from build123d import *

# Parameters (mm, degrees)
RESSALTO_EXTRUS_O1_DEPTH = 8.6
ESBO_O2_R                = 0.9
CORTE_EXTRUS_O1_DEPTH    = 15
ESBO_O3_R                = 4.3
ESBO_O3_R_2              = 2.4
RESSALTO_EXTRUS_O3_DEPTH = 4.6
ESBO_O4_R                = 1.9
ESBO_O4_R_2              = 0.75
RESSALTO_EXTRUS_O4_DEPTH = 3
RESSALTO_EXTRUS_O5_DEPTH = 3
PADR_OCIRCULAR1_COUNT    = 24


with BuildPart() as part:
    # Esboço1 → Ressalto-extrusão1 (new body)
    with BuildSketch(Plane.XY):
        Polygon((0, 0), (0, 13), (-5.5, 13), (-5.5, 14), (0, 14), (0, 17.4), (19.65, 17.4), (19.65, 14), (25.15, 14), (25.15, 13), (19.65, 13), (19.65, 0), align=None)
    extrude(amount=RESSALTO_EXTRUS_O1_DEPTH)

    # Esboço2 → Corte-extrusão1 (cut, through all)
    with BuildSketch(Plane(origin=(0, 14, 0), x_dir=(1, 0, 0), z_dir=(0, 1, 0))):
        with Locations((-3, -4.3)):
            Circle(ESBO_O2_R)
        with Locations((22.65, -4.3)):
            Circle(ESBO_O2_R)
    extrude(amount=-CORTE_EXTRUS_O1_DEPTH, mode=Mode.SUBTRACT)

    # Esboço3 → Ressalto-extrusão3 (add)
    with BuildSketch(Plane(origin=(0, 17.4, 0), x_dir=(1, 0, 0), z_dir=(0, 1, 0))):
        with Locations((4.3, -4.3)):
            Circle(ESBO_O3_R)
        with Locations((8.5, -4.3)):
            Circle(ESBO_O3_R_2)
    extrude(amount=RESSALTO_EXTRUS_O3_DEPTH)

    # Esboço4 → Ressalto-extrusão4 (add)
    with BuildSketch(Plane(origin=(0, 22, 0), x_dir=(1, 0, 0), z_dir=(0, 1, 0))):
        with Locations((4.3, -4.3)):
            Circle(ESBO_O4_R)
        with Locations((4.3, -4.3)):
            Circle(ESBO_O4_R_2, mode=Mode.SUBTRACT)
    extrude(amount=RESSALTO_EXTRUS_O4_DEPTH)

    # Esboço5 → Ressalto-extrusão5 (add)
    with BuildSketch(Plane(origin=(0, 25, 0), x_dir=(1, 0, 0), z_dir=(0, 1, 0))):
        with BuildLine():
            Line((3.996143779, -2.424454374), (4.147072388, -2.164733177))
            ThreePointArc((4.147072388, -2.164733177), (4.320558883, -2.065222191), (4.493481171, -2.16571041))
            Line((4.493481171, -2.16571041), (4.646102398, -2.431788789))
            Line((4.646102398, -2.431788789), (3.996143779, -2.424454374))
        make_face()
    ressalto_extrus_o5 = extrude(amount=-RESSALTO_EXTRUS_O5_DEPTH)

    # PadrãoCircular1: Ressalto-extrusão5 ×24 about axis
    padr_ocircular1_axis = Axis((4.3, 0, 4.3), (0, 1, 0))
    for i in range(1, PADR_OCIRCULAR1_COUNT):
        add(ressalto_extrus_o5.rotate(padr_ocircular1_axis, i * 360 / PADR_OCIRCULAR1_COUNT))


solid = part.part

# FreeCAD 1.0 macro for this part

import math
import FreeCAD as App
import Part
import Sketcher
from FreeCAD import Vector
Q = App.Units.Quantity


def add_polygon(sketch, points):
    """Adds a closed chain of lines whose ends are joined by coincident constraints."""
    first, n = sketch.GeometryCount, len(points)
    for a, b in zip(points, points[1:] + points[:1]):
        sketch.addGeometry(Part.LineSegment(App.Vector(*a, 0), App.Vector(*b, 0)), False)
    for i in range(n):
        sketch.addConstraint(Sketcher.Constraint("Coincident", first + i, 2, first + (i + 1) % n, 1))

doc = App.newDocument("Part")
params = doc.addObject("Spreadsheet::Sheet", "Params")
for row, (alias, value) in enumerate([
    ("sketch1_height", "13 mm"),
    ("sketch1_height2", "1 mm"),
    ("sketch1_width", "5.5 mm"),
    ("sketch1_height3", "3.4 mm"),
    ("sketch1_width2", "19.65 mm"),
    ("pad1_length", "8.6 mm"),
    ("sketch2_diameter", "1.8 mm"),
    ("sketch3_radius", "2.4 mm"),
    ("sketch3_radius2", "4.3 mm"),
    ("pad2_length", "4.6 mm"),
    ("sketch4_diameter", "3.8 mm"),
    ("sketch4_diameter2", "1.5 mm"),
    ("pad3_length", "3 mm"),
    ("sketch5_radius", "0.2 mm"),
    ("sketch5_length", "0.65 mm"),
    ("pad4_length", "3 mm"),
], start=1):
    params.set(f"A{row}", alias)
    params.set(f"B{row}", "=" + value)
    params.setAlias(f"B{row}", alias)

body = doc.addObject("PartDesign::Body", "Body")

# Sketch on XY plane
sketch1 = doc.addObject("Sketcher::SketchObject", "Sketch")
body.addObject(sketch1)
sketch1.AttachmentSupport = (doc.XY_Plane, [""])
sketch1.MapMode = "FlatFace"
add_polygon(sketch1, [(0, 13), (0, 0), (19.6, 0), (19.6, 13), (25.1, 13), (25.1, 14), (19.6, 14), (19.6, 17.4), (0, 17.4), (0, 14), (-5.5, 14), (-5.5, 13)])  # lines 0-11
sketch1.addConstraint(Sketcher.Constraint("Vertical", 0))
sketch1.addConstraint(Sketcher.Constraint("Horizontal", 1))
sketch1.addConstraint(Sketcher.Constraint("Vertical", 2))
sketch1.addConstraint(Sketcher.Constraint("Horizontal", 3))
sketch1.addConstraint(Sketcher.Constraint("Vertical", 4))
sketch1.addConstraint(Sketcher.Constraint("Horizontal", 5))
sketch1.addConstraint(Sketcher.Constraint("Vertical", 6))
sketch1.addConstraint(Sketcher.Constraint("Horizontal", 7))
sketch1.addConstraint(Sketcher.Constraint("Vertical", 8))
sketch1.addConstraint(Sketcher.Constraint("Horizontal", 9))
sketch1.addConstraint(Sketcher.Constraint("Vertical", 10))
sketch1.addConstraint(Sketcher.Constraint("Horizontal", 11))
sketch1.addConstraint(Sketcher.Constraint("Coincident", 0, 2, -1, 1))
sketch1.addConstraint(Sketcher.Constraint("PointOnObject", 7, 2, -2))
sketch1.addConstraint(Sketcher.Constraint("Horizontal", 5, 2, 8, 2))
sketch1.addConstraint(Sketcher.Constraint("Horizontal", 3, 2, 10, 2))
sketch1.addConstraint(Sketcher.Constraint("Vertical", 2, 2, 5, 2))
sketch1.addConstraint(Sketcher.Constraint("Equal", 5, 9))
sketch1.addConstraint(Sketcher.Constraint("DistanceY", 0, 2, 0, 1, Q("13 mm")))
sketch1.addConstraint(Sketcher.Constraint("DistanceY", 4, 1, 4, 2, Q("1 mm")))
sketch1.addConstraint(Sketcher.Constraint("DistanceX", 3, 1, 3, 2, Q("5.5 mm")))
sketch1.addConstraint(Sketcher.Constraint("DistanceY", 6, 1, 6, 2, Q("3.4 mm")))
sketch1.addConstraint(Sketcher.Constraint("DistanceX", 1, 1, 1, 2, Q("19.65 mm")))
sketch1.setExpression("Constraints[30]", "Params.sketch1_height")
sketch1.setExpression("Constraints[31]", "Params.sketch1_height2")
sketch1.setExpression("Constraints[32]", "Params.sketch1_width")
sketch1.setExpression("Constraints[33]", "Params.sketch1_height3")
sketch1.setExpression("Constraints[34]", "Params.sketch1_width2")
pad1 = doc.addObject("PartDesign::Pad", "Pad")
body.addObject(pad1)
pad1.Profile = sketch1
pad1.setExpression("Length", "Params.pad1_length")

# Sketch on XZ plane
sketch2 = doc.addObject("Sketcher::SketchObject", "Sketch001")
body.addObject(sketch2)
sketch2.AttachmentSupport = (doc.XZ_Plane, [""])
sketch2.MapMode = "FlatFace"
sketch2.AttachmentOffset = App.Placement(Vector(0, 0, -14), App.Rotation())
sketch2.addGeometry(Part.Circle(Vector(-3, 4.3, 0), Vector(0, 0, 1), 0.9), False)
sketch2.addGeometry(Part.Circle(Vector(22.6, 4.3, 0), Vector(0, 0, 1), 0.9), False)
sketch2.addConstraint(Sketcher.Constraint("Equal", 0, 1))
sketch2.addConstraint(Sketcher.Constraint("Horizontal", 0, 3, 1, 3))
sketch2.addConstraint(Sketcher.Constraint("Diameter", 0, Q("1.8 mm")))
sketch2.addConstraint(Sketcher.Constraint("DistanceX", 0, 3, -1, 1, Q("3 mm")))
sketch2.addConstraint(Sketcher.Constraint("DistanceY", -1, 1, 0, 3, Q("4.3 mm")))
sketch2.addConstraint(Sketcher.Constraint("DistanceX", -1, 1, 1, 3, Q("22.65 mm")))
sketch2.setExpression("Constraints[2]", "Params.sketch2_diameter")
pocket1 = doc.addObject("PartDesign::Pocket", "Pocket")
body.addObject(pocket1)
pocket1.Profile = sketch2
pocket1.Type = "ThroughAll"
pocket1.Reversed = True

# Sketch on XZ plane
sketch3 = doc.addObject("Sketcher::SketchObject", "Sketch002")
body.addObject(sketch3)
sketch3.AttachmentSupport = (doc.XZ_Plane, [""])
sketch3.MapMode = "FlatFace"
sketch3.AttachmentOffset = App.Placement(Vector(0, 0, -17.4), App.Rotation())
sketch3.addGeometry(Part.ArcOfCircle(Part.Circle(Vector(8.5, 4.3, 0), Vector(0, 0, 1), 2.4), math.radians(-104), math.radians(104)), False)
sketch3.addGeometry(Part.ArcOfCircle(Part.Circle(Vector(4.3, 4.3, 0), Vector(0, 0, 1), 4.3), math.radians(33), math.radians(327)), False)
sketch3.addConstraint(Sketcher.Constraint("Coincident", 0, 1, 1, 2))
sketch3.addConstraint(Sketcher.Constraint("Coincident", 1, 1, 0, 2))
sketch3.addConstraint(Sketcher.Constraint("Horizontal", 0, 3, 1, 3))
sketch3.addConstraint(Sketcher.Constraint("Radius", 0, Q("2.4 mm")))
sketch3.addConstraint(Sketcher.Constraint("Radius", 1, Q("4.3 mm")))
sketch3.addConstraint(Sketcher.Constraint("DistanceX", -1, 1, 0, 3, Q("8.5 mm")))
sketch3.addConstraint(Sketcher.Constraint("DistanceY", -1, 1, 0, 3, Q("4.3 mm")))
sketch3.addConstraint(Sketcher.Constraint("DistanceX", -1, 1, 1, 3, Q("4.3 mm")))
sketch3.setExpression("Constraints[3]", "Params.sketch3_radius")
sketch3.setExpression("Constraints[4]", "Params.sketch3_radius2")
pad2 = doc.addObject("PartDesign::Pad", "Pad001")
body.addObject(pad2)
pad2.Profile = sketch3
pad2.setExpression("Length", "Params.pad2_length")
pad2.Reversed = True

# Sketch on XZ plane
sketch4 = doc.addObject("Sketcher::SketchObject", "Sketch003")
body.addObject(sketch4)
sketch4.AttachmentSupport = (doc.XZ_Plane, [""])
sketch4.MapMode = "FlatFace"
sketch4.AttachmentOffset = App.Placement(Vector(0, 0, -22), App.Rotation())
sketch4.addGeometry(Part.Circle(Vector(4.3, 4.3, 0), Vector(0, 0, 1), 1.9), False)
sketch4.addGeometry(Part.Circle(Vector(4.3, 4.3, 0), Vector(0, 0, 1), 0.8), False)
sketch4.addConstraint(Sketcher.Constraint("Coincident", 1, 3, 0, 3))
sketch4.addConstraint(Sketcher.Constraint("Diameter", 0, Q("3.8 mm")))
sketch4.addConstraint(Sketcher.Constraint("Diameter", 1, Q("1.5 mm")))
sketch4.addConstraint(Sketcher.Constraint("DistanceX", -1, 1, 0, 3, Q("4.3 mm")))
sketch4.addConstraint(Sketcher.Constraint("DistanceY", -1, 1, 0, 3, Q("4.3 mm")))
sketch4.setExpression("Constraints[1]", "Params.sketch4_diameter")
sketch4.setExpression("Constraints[2]", "Params.sketch4_diameter2")
pad3 = doc.addObject("PartDesign::Pad", "Pad002")
body.addObject(pad3)
pad3.Profile = sketch4
pad3.setExpression("Length", "Params.pad3_length")
pad3.Reversed = True

# Sketch on XZ plane
sketch5 = doc.addObject("Sketcher::SketchObject", "Sketch004")
body.addObject(sketch5)
sketch5.AttachmentSupport = (doc.XZ_Plane, [""])
sketch5.MapMode = "FlatFace"
sketch5.AttachmentOffset = App.Placement(Vector(0, 0, -25), App.Rotation())
sketch5.addGeometry(Part.LineSegment(Vector(4.15, 2.16, 0), Vector(4, 2.42, 0)), False)
sketch5.addGeometry(Part.LineSegment(Vector(4, 2.42, 0), Vector(4.65, 2.43, 0)), False)
sketch5.addGeometry(Part.LineSegment(Vector(4.65, 2.43, 0), Vector(4.49, 2.17, 0)), False)
sketch5.addGeometry(Part.ArcOfCircle(Part.Circle(Vector(4.32, 2.27, 0), Vector(0, 0, 1), 0.2), math.radians(-150), math.radians(-30)), False)
sketch5.addConstraint(Sketcher.Constraint("Coincident", 0, 2, 1, 1))
sketch5.addConstraint(Sketcher.Constraint("Coincident", 1, 2, 2, 1))
sketch5.addConstraint(Sketcher.Constraint("Tangent", 2, 2, 3, 2))
sketch5.addConstraint(Sketcher.Constraint("Tangent", 3, 1, 0, 1))
sketch5.addConstraint(Sketcher.Constraint("Radius", 3, Q("0.2 mm")))
sketch5.addConstraint(Sketcher.Constraint("Distance", 1, Q("0.65 mm")))
sketch5.addConstraint(Sketcher.Constraint("Distance", 0, Q("0.300391 mm")))
sketch5.addConstraint(Sketcher.Constraint("DistanceY", -1, 1, 3, 3, Q("2.265221 mm")))
sketch5.addConstraint(Sketcher.Constraint("DistanceY", -1, 1, 1, 2, Q("2.431789 mm")))
sketch5.addConstraint(Sketcher.Constraint("DistanceX", -1, 1, 2, 2, Q("4.493481 mm")))
sketch5.addConstraint(Sketcher.Constraint("DistanceY", -1, 1, 2, 2, Q("2.16571 mm")))
sketch5.setExpression("Constraints[4]", "Params.sketch5_radius")
sketch5.setExpression("Constraints[5]", "Params.sketch5_length")
pad4 = doc.addObject("PartDesign::Pad", "Pad003")
body.addObject(pad4)
pad4.Profile = sketch5
pad4.setExpression("Length", "Params.pad4_length")
doc.recompute()

datumline = doc.addObject("PartDesign::Line", "DatumLine")
body.addObject(datumline)
datumline.Placement = App.Placement(Vector(4.3, 0, 4.3), App.Rotation(Vector(0, 0, 1), Vector(0, 1, 0)))
polarpattern = doc.addObject("PartDesign::PolarPattern", "PolarPattern")
body.addObject(polarpattern)
polarpattern.Originals = [pad4]
polarpattern.Axis = (datumline, [""])
polarpattern.Angle = 360
polarpattern.Occurrences = 24
body.Tip = polarpattern

doc.recompute()
